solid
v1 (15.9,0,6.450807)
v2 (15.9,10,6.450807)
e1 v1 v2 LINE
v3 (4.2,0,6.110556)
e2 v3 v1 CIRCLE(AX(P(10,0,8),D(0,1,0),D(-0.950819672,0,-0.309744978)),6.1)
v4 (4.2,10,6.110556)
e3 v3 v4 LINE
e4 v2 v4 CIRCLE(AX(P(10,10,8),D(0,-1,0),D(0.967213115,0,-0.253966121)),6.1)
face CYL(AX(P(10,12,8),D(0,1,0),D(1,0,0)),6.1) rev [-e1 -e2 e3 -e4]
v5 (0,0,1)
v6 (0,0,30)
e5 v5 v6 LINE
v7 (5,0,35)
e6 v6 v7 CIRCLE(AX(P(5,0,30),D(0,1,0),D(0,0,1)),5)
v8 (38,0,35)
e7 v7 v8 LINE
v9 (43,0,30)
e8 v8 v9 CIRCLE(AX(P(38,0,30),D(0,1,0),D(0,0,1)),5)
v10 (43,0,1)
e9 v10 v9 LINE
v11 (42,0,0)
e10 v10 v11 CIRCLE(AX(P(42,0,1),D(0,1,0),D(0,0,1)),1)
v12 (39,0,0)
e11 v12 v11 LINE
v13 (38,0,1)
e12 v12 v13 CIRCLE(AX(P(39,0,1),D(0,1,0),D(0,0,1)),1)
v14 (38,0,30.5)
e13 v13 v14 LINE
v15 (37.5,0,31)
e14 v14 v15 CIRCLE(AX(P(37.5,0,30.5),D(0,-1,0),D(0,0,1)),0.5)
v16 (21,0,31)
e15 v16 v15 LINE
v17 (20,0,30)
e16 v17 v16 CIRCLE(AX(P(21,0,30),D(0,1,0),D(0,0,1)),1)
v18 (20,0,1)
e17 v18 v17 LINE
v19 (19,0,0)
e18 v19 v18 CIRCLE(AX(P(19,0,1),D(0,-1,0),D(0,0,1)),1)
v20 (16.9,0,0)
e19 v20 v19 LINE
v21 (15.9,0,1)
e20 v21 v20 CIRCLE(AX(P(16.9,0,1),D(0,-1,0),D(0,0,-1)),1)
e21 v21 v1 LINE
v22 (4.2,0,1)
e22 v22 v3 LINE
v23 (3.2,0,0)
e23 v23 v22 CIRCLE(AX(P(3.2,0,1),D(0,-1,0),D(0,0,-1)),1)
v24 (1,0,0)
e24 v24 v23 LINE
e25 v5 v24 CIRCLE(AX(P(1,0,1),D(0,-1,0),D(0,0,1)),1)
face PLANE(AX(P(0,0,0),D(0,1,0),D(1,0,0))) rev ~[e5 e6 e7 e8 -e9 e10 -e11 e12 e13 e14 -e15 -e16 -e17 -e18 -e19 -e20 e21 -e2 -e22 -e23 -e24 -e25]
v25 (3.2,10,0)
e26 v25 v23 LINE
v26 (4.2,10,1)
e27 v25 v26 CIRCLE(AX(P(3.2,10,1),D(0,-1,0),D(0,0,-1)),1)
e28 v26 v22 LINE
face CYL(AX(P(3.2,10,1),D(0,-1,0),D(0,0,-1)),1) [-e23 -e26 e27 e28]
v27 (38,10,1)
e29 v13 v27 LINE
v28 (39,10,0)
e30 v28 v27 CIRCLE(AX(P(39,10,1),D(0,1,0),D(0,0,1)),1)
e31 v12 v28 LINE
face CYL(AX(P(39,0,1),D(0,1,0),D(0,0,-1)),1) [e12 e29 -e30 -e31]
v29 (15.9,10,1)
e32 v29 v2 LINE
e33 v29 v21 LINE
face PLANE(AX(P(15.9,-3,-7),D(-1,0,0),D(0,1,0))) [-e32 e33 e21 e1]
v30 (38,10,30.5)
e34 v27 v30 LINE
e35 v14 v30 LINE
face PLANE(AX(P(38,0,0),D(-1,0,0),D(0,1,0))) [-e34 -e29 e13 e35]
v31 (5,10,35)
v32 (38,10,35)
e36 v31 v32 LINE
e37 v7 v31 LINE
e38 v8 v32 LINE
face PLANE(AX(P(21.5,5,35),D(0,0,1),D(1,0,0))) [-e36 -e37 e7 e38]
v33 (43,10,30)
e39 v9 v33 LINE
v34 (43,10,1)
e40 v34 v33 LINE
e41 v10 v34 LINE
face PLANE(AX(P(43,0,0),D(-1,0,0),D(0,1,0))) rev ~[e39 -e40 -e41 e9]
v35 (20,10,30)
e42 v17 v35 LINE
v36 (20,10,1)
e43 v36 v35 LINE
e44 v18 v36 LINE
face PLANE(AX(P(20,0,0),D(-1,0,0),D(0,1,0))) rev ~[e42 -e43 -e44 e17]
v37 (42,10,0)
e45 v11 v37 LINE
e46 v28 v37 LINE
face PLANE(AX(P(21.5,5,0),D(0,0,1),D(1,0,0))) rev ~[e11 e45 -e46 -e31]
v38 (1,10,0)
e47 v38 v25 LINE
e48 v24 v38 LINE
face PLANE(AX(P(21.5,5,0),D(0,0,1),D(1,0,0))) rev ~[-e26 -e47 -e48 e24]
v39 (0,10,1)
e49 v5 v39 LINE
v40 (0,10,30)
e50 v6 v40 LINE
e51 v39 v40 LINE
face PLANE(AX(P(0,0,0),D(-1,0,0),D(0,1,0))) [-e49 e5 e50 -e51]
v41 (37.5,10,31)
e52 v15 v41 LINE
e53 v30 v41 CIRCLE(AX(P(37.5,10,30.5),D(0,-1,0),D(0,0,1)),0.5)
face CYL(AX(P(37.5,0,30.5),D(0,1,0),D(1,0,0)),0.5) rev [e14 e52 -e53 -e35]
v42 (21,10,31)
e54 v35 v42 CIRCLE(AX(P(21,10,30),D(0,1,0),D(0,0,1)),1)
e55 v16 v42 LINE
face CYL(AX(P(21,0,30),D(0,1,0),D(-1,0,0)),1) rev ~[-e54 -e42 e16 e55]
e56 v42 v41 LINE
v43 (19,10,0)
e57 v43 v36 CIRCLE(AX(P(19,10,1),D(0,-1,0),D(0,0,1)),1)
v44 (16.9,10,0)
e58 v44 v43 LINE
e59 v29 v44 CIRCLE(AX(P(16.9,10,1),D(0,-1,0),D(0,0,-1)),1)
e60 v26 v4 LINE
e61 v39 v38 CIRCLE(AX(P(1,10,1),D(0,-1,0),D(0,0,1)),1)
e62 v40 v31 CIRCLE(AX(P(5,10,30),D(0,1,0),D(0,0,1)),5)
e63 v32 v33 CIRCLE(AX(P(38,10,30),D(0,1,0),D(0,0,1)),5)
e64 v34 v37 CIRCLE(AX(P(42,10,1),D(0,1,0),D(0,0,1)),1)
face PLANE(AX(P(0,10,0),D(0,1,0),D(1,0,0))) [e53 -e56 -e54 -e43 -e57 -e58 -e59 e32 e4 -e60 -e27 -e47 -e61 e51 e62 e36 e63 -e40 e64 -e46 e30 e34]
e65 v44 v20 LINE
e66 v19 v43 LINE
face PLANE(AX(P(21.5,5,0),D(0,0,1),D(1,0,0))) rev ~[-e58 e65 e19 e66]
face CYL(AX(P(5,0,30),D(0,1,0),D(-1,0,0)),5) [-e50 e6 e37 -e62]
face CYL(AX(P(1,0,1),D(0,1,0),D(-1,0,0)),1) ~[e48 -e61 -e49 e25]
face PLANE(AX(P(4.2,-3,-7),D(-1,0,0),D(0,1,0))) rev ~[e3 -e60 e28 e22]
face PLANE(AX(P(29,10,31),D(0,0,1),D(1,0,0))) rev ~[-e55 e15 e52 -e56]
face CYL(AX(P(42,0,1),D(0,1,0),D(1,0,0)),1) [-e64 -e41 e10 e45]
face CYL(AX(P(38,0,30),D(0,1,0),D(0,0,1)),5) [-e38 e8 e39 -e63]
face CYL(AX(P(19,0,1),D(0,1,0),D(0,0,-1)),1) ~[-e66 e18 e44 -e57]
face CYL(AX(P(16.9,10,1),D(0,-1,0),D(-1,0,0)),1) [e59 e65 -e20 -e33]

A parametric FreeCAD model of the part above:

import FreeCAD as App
import Part
import Sketcher

V = App.Vector
Q = App.Units.Quantity


def edges_at(feature, points):
    """Names of the edges that pass closest to the given points."""
    edges = feature.Shape.Edges
    near = lambda p: min(range(len(edges)), key=lambda i: edges[i].distToShape(Part.Vertex(*p))[0])
    return sorted({f"Edge{near(p) + 1}" for p in points})

doc = App.newDocument("Part")
body = doc.addObject("PartDesign::Body", "Body")

# Sketch on XZ plane
sketch1 = body.newObject("Sketcher::SketchObject", "Sketch")
sketch1.AttachmentSupport = (doc.getObject("XZ_Plane"), [""])
sketch1.MapMode = "FlatFace"
sketch1.AttachmentOffset = App.Placement(V(0, 0, -12), App.Rotation())
sketch1.addGeometry(Part.Circle(V(10, 8, 0), V(0, 0, 1), 6.1), False)
sketch1.addConstraint([
    Sketcher.Constraint("Diameter", 0, Q("12.2 mm")),
    Sketcher.Constraint("DistanceX", -1, 1, 0, 3, Q("10 mm")),
    Sketcher.Constraint("DistanceY", -1, 1, 0, 3, Q("8 mm")),
])
pad1 = body.newObject("PartDesign::Pad", "Pad")
pad1.Profile = sketch1
pad1.Length = 15
body2 = doc.addObject("PartDesign::Body", "Body001")

# Sketch on XY plane
sketch2 = body2.newObject("Sketcher::SketchObject", "Sketch001")
sketch2.AttachmentSupport = (doc.getObject("XY_Plane001"), [""])
sketch2.MapMode = "FlatFace"
sketch2.AttachmentOffset = App.Placement(V(0, 0, -7), App.Rotation())
sketch2.addGeometry([
    Part.LineSegment(V(4.2, 12, 0), V(4.2, -3, 0)),
    Part.LineSegment(V(4.2, -3, 0), V(15.9, -3, 0)),
    Part.LineSegment(V(15.9, -3, 0), V(15.9, 12, 0)),
    Part.LineSegment(V(15.9, 12, 0), V(4.2, 12, 0)),
], False)
sketch2.addConstraint([
    Sketcher.Constraint("Coincident", 0, 2, 1, 1),
    Sketcher.Constraint("Coincident", 1, 2, 2, 1),
    Sketcher.Constraint("Coincident", 2, 2, 3, 1),
    Sketcher.Constraint("Coincident", 3, 2, 0, 1),
    Sketcher.Constraint("Vertical", 0),
    Sketcher.Constraint("Horizontal", 1),
    Sketcher.Constraint("Vertical", 2),
    Sketcher.Constraint("Horizontal", 3),
    Sketcher.Constraint("DistanceY", 0, 2, 0, 1, Q("15 mm")),
    Sketcher.Constraint("DistanceX", 1, 1, 1, 2, Q("11.7 mm")),
    Sketcher.Constraint("DistanceY", 0, 2, -1, 1, Q("3 mm")),
    Sketcher.Constraint("DistanceX", -1, 1, 0, 2, Q("4.2 mm")),
])
pad2 = body2.newObject("PartDesign::Pad", "Pad001")
pad2.Profile = sketch2
pad2.Length = 15
body3 = doc.addObject("PartDesign::Body", "Body002")

# Sketch on XY plane
sketch3 = body3.newObject("Sketcher::SketchObject", "Sketch002")
sketch3.AttachmentSupport = (doc.getObject("XY_Plane002"), [""])
sketch3.MapMode = "FlatFace"
sketch3.addGeometry([
    Part.LineSegment(V(20, 20, 0), V(20, 0, 0)),
    Part.LineSegment(V(20, 0, 0), V(38, 0, 0)),
    Part.LineSegment(V(38, 0, 0), V(38, 20, 0)),
    Part.LineSegment(V(38, 20, 0), V(20, 20, 0)),
], False)
sketch3.addConstraint([
    Sketcher.Constraint("Coincident", 0, 2, 1, 1),
    Sketcher.Constraint("Coincident", 1, 2, 2, 1),
    Sketcher.Constraint("Coincident", 2, 2, 3, 1),
    Sketcher.Constraint("Coincident", 3, 2, 0, 1),
    Sketcher.Constraint("Vertical", 0),
    Sketcher.Constraint("Horizontal", 1),
    Sketcher.Constraint("Vertical", 2),
    Sketcher.Constraint("Horizontal", 3),
    Sketcher.Constraint("PointOnObject", 0, 2, -1),
    Sketcher.Constraint("DistanceX", 1, 1, 1, 2, Q("18 mm")),
    Sketcher.Constraint("DistanceY", 0, 2, 0, 1, Q("20 mm")),
    Sketcher.Constraint("DistanceX", -1, 1, 0, 2, Q("20 mm")),
])
pad3 = body3.newObject("PartDesign::Pad", "Pad002")
pad3.Profile = sketch3
pad3.Length = 31
body4 = doc.addObject("PartDesign::Body", "Body003")

# Sketch on XY plane
sketch4 = body4.newObject("Sketcher::SketchObject", "Sketch003")
sketch4.AttachmentSupport = (doc.getObject("XY_Plane003"), [""])
sketch4.MapMode = "FlatFace"
sketch4.addGeometry([
    Part.LineSegment(V(0, 10, 0), V(0, 0, 0)),
    Part.LineSegment(V(0, 0, 0), V(43, 0, 0)),
    Part.LineSegment(V(43, 0, 0), V(43, 10, 0)),
    Part.LineSegment(V(43, 10, 0), V(0, 10, 0)),
], False)
sketch4.addConstraint([
    Sketcher.Constraint("Coincident", 0, 2, 1, 1),
    Sketcher.Constraint("Coincident", 1, 2, 2, 1),
    Sketcher.Constraint("Coincident", 2, 2, 3, 1),
    Sketcher.Constraint("Coincident", 3, 2, 0, 1),
    Sketcher.Constraint("Vertical", 0),
    Sketcher.Constraint("Horizontal", 1),
    Sketcher.Constraint("Vertical", 2),
    Sketcher.Constraint("Horizontal", 3),
    Sketcher.Constraint("Coincident", 0, 2, -1, 1),
    Sketcher.Constraint("DistanceX", 1, 1, 1, 2, Q("43 mm")),
    Sketcher.Constraint("DistanceY", 0, 2, 0, 1, Q("10 mm")),
])
pad4 = body4.newObject("PartDesign::Pad", "Pad003")
pad4.Profile = sketch4
pad4.Length = 35
doc.recompute()

boolean = body4.newObject("PartDesign::Boolean", "Boolean")
boolean.Type = "Cut"
boolean.addObjects([body3])
doc.recompute()

boolean2 = body4.newObject("PartDesign::Boolean", "Boolean001")
boolean2.Type = "Cut"
boolean2.addObjects([body2])
doc.recompute()

boolean3 = body4.newObject("PartDesign::Boolean", "Boolean002")
boolean3.Type = "Cut"
boolean3.addObjects([body])
doc.recompute()

fillet = body4.newObject("PartDesign::Fillet", "Fillet")
fillet.Base = (boolean3, edges_at(boolean3, [(0, 5, 35), (43, 5, 35)]))
fillet.Radius = 5
doc.recompute()

fillet2 = body4.newObject("PartDesign::Fillet", "Fillet001")
fillet2.Base = (fillet, edges_at(fillet, [
    (0, 5, 0),
    (4.2, 5, 0),
    (43, 5, 0),
    (38, 5, 0),
    (20, 5, 31),
    (20, 5, 0),
    (15.9, 5, 0),
]))
fillet2.Radius = 1
doc.recompute()

fillet3 = body4.newObject("PartDesign::Fillet", "Fillet002")
fillet3.Base = (fillet2, edges_at(fillet2, [(38, 5, 31)]))
fillet3.Radius = 0.5

doc.recompute()
